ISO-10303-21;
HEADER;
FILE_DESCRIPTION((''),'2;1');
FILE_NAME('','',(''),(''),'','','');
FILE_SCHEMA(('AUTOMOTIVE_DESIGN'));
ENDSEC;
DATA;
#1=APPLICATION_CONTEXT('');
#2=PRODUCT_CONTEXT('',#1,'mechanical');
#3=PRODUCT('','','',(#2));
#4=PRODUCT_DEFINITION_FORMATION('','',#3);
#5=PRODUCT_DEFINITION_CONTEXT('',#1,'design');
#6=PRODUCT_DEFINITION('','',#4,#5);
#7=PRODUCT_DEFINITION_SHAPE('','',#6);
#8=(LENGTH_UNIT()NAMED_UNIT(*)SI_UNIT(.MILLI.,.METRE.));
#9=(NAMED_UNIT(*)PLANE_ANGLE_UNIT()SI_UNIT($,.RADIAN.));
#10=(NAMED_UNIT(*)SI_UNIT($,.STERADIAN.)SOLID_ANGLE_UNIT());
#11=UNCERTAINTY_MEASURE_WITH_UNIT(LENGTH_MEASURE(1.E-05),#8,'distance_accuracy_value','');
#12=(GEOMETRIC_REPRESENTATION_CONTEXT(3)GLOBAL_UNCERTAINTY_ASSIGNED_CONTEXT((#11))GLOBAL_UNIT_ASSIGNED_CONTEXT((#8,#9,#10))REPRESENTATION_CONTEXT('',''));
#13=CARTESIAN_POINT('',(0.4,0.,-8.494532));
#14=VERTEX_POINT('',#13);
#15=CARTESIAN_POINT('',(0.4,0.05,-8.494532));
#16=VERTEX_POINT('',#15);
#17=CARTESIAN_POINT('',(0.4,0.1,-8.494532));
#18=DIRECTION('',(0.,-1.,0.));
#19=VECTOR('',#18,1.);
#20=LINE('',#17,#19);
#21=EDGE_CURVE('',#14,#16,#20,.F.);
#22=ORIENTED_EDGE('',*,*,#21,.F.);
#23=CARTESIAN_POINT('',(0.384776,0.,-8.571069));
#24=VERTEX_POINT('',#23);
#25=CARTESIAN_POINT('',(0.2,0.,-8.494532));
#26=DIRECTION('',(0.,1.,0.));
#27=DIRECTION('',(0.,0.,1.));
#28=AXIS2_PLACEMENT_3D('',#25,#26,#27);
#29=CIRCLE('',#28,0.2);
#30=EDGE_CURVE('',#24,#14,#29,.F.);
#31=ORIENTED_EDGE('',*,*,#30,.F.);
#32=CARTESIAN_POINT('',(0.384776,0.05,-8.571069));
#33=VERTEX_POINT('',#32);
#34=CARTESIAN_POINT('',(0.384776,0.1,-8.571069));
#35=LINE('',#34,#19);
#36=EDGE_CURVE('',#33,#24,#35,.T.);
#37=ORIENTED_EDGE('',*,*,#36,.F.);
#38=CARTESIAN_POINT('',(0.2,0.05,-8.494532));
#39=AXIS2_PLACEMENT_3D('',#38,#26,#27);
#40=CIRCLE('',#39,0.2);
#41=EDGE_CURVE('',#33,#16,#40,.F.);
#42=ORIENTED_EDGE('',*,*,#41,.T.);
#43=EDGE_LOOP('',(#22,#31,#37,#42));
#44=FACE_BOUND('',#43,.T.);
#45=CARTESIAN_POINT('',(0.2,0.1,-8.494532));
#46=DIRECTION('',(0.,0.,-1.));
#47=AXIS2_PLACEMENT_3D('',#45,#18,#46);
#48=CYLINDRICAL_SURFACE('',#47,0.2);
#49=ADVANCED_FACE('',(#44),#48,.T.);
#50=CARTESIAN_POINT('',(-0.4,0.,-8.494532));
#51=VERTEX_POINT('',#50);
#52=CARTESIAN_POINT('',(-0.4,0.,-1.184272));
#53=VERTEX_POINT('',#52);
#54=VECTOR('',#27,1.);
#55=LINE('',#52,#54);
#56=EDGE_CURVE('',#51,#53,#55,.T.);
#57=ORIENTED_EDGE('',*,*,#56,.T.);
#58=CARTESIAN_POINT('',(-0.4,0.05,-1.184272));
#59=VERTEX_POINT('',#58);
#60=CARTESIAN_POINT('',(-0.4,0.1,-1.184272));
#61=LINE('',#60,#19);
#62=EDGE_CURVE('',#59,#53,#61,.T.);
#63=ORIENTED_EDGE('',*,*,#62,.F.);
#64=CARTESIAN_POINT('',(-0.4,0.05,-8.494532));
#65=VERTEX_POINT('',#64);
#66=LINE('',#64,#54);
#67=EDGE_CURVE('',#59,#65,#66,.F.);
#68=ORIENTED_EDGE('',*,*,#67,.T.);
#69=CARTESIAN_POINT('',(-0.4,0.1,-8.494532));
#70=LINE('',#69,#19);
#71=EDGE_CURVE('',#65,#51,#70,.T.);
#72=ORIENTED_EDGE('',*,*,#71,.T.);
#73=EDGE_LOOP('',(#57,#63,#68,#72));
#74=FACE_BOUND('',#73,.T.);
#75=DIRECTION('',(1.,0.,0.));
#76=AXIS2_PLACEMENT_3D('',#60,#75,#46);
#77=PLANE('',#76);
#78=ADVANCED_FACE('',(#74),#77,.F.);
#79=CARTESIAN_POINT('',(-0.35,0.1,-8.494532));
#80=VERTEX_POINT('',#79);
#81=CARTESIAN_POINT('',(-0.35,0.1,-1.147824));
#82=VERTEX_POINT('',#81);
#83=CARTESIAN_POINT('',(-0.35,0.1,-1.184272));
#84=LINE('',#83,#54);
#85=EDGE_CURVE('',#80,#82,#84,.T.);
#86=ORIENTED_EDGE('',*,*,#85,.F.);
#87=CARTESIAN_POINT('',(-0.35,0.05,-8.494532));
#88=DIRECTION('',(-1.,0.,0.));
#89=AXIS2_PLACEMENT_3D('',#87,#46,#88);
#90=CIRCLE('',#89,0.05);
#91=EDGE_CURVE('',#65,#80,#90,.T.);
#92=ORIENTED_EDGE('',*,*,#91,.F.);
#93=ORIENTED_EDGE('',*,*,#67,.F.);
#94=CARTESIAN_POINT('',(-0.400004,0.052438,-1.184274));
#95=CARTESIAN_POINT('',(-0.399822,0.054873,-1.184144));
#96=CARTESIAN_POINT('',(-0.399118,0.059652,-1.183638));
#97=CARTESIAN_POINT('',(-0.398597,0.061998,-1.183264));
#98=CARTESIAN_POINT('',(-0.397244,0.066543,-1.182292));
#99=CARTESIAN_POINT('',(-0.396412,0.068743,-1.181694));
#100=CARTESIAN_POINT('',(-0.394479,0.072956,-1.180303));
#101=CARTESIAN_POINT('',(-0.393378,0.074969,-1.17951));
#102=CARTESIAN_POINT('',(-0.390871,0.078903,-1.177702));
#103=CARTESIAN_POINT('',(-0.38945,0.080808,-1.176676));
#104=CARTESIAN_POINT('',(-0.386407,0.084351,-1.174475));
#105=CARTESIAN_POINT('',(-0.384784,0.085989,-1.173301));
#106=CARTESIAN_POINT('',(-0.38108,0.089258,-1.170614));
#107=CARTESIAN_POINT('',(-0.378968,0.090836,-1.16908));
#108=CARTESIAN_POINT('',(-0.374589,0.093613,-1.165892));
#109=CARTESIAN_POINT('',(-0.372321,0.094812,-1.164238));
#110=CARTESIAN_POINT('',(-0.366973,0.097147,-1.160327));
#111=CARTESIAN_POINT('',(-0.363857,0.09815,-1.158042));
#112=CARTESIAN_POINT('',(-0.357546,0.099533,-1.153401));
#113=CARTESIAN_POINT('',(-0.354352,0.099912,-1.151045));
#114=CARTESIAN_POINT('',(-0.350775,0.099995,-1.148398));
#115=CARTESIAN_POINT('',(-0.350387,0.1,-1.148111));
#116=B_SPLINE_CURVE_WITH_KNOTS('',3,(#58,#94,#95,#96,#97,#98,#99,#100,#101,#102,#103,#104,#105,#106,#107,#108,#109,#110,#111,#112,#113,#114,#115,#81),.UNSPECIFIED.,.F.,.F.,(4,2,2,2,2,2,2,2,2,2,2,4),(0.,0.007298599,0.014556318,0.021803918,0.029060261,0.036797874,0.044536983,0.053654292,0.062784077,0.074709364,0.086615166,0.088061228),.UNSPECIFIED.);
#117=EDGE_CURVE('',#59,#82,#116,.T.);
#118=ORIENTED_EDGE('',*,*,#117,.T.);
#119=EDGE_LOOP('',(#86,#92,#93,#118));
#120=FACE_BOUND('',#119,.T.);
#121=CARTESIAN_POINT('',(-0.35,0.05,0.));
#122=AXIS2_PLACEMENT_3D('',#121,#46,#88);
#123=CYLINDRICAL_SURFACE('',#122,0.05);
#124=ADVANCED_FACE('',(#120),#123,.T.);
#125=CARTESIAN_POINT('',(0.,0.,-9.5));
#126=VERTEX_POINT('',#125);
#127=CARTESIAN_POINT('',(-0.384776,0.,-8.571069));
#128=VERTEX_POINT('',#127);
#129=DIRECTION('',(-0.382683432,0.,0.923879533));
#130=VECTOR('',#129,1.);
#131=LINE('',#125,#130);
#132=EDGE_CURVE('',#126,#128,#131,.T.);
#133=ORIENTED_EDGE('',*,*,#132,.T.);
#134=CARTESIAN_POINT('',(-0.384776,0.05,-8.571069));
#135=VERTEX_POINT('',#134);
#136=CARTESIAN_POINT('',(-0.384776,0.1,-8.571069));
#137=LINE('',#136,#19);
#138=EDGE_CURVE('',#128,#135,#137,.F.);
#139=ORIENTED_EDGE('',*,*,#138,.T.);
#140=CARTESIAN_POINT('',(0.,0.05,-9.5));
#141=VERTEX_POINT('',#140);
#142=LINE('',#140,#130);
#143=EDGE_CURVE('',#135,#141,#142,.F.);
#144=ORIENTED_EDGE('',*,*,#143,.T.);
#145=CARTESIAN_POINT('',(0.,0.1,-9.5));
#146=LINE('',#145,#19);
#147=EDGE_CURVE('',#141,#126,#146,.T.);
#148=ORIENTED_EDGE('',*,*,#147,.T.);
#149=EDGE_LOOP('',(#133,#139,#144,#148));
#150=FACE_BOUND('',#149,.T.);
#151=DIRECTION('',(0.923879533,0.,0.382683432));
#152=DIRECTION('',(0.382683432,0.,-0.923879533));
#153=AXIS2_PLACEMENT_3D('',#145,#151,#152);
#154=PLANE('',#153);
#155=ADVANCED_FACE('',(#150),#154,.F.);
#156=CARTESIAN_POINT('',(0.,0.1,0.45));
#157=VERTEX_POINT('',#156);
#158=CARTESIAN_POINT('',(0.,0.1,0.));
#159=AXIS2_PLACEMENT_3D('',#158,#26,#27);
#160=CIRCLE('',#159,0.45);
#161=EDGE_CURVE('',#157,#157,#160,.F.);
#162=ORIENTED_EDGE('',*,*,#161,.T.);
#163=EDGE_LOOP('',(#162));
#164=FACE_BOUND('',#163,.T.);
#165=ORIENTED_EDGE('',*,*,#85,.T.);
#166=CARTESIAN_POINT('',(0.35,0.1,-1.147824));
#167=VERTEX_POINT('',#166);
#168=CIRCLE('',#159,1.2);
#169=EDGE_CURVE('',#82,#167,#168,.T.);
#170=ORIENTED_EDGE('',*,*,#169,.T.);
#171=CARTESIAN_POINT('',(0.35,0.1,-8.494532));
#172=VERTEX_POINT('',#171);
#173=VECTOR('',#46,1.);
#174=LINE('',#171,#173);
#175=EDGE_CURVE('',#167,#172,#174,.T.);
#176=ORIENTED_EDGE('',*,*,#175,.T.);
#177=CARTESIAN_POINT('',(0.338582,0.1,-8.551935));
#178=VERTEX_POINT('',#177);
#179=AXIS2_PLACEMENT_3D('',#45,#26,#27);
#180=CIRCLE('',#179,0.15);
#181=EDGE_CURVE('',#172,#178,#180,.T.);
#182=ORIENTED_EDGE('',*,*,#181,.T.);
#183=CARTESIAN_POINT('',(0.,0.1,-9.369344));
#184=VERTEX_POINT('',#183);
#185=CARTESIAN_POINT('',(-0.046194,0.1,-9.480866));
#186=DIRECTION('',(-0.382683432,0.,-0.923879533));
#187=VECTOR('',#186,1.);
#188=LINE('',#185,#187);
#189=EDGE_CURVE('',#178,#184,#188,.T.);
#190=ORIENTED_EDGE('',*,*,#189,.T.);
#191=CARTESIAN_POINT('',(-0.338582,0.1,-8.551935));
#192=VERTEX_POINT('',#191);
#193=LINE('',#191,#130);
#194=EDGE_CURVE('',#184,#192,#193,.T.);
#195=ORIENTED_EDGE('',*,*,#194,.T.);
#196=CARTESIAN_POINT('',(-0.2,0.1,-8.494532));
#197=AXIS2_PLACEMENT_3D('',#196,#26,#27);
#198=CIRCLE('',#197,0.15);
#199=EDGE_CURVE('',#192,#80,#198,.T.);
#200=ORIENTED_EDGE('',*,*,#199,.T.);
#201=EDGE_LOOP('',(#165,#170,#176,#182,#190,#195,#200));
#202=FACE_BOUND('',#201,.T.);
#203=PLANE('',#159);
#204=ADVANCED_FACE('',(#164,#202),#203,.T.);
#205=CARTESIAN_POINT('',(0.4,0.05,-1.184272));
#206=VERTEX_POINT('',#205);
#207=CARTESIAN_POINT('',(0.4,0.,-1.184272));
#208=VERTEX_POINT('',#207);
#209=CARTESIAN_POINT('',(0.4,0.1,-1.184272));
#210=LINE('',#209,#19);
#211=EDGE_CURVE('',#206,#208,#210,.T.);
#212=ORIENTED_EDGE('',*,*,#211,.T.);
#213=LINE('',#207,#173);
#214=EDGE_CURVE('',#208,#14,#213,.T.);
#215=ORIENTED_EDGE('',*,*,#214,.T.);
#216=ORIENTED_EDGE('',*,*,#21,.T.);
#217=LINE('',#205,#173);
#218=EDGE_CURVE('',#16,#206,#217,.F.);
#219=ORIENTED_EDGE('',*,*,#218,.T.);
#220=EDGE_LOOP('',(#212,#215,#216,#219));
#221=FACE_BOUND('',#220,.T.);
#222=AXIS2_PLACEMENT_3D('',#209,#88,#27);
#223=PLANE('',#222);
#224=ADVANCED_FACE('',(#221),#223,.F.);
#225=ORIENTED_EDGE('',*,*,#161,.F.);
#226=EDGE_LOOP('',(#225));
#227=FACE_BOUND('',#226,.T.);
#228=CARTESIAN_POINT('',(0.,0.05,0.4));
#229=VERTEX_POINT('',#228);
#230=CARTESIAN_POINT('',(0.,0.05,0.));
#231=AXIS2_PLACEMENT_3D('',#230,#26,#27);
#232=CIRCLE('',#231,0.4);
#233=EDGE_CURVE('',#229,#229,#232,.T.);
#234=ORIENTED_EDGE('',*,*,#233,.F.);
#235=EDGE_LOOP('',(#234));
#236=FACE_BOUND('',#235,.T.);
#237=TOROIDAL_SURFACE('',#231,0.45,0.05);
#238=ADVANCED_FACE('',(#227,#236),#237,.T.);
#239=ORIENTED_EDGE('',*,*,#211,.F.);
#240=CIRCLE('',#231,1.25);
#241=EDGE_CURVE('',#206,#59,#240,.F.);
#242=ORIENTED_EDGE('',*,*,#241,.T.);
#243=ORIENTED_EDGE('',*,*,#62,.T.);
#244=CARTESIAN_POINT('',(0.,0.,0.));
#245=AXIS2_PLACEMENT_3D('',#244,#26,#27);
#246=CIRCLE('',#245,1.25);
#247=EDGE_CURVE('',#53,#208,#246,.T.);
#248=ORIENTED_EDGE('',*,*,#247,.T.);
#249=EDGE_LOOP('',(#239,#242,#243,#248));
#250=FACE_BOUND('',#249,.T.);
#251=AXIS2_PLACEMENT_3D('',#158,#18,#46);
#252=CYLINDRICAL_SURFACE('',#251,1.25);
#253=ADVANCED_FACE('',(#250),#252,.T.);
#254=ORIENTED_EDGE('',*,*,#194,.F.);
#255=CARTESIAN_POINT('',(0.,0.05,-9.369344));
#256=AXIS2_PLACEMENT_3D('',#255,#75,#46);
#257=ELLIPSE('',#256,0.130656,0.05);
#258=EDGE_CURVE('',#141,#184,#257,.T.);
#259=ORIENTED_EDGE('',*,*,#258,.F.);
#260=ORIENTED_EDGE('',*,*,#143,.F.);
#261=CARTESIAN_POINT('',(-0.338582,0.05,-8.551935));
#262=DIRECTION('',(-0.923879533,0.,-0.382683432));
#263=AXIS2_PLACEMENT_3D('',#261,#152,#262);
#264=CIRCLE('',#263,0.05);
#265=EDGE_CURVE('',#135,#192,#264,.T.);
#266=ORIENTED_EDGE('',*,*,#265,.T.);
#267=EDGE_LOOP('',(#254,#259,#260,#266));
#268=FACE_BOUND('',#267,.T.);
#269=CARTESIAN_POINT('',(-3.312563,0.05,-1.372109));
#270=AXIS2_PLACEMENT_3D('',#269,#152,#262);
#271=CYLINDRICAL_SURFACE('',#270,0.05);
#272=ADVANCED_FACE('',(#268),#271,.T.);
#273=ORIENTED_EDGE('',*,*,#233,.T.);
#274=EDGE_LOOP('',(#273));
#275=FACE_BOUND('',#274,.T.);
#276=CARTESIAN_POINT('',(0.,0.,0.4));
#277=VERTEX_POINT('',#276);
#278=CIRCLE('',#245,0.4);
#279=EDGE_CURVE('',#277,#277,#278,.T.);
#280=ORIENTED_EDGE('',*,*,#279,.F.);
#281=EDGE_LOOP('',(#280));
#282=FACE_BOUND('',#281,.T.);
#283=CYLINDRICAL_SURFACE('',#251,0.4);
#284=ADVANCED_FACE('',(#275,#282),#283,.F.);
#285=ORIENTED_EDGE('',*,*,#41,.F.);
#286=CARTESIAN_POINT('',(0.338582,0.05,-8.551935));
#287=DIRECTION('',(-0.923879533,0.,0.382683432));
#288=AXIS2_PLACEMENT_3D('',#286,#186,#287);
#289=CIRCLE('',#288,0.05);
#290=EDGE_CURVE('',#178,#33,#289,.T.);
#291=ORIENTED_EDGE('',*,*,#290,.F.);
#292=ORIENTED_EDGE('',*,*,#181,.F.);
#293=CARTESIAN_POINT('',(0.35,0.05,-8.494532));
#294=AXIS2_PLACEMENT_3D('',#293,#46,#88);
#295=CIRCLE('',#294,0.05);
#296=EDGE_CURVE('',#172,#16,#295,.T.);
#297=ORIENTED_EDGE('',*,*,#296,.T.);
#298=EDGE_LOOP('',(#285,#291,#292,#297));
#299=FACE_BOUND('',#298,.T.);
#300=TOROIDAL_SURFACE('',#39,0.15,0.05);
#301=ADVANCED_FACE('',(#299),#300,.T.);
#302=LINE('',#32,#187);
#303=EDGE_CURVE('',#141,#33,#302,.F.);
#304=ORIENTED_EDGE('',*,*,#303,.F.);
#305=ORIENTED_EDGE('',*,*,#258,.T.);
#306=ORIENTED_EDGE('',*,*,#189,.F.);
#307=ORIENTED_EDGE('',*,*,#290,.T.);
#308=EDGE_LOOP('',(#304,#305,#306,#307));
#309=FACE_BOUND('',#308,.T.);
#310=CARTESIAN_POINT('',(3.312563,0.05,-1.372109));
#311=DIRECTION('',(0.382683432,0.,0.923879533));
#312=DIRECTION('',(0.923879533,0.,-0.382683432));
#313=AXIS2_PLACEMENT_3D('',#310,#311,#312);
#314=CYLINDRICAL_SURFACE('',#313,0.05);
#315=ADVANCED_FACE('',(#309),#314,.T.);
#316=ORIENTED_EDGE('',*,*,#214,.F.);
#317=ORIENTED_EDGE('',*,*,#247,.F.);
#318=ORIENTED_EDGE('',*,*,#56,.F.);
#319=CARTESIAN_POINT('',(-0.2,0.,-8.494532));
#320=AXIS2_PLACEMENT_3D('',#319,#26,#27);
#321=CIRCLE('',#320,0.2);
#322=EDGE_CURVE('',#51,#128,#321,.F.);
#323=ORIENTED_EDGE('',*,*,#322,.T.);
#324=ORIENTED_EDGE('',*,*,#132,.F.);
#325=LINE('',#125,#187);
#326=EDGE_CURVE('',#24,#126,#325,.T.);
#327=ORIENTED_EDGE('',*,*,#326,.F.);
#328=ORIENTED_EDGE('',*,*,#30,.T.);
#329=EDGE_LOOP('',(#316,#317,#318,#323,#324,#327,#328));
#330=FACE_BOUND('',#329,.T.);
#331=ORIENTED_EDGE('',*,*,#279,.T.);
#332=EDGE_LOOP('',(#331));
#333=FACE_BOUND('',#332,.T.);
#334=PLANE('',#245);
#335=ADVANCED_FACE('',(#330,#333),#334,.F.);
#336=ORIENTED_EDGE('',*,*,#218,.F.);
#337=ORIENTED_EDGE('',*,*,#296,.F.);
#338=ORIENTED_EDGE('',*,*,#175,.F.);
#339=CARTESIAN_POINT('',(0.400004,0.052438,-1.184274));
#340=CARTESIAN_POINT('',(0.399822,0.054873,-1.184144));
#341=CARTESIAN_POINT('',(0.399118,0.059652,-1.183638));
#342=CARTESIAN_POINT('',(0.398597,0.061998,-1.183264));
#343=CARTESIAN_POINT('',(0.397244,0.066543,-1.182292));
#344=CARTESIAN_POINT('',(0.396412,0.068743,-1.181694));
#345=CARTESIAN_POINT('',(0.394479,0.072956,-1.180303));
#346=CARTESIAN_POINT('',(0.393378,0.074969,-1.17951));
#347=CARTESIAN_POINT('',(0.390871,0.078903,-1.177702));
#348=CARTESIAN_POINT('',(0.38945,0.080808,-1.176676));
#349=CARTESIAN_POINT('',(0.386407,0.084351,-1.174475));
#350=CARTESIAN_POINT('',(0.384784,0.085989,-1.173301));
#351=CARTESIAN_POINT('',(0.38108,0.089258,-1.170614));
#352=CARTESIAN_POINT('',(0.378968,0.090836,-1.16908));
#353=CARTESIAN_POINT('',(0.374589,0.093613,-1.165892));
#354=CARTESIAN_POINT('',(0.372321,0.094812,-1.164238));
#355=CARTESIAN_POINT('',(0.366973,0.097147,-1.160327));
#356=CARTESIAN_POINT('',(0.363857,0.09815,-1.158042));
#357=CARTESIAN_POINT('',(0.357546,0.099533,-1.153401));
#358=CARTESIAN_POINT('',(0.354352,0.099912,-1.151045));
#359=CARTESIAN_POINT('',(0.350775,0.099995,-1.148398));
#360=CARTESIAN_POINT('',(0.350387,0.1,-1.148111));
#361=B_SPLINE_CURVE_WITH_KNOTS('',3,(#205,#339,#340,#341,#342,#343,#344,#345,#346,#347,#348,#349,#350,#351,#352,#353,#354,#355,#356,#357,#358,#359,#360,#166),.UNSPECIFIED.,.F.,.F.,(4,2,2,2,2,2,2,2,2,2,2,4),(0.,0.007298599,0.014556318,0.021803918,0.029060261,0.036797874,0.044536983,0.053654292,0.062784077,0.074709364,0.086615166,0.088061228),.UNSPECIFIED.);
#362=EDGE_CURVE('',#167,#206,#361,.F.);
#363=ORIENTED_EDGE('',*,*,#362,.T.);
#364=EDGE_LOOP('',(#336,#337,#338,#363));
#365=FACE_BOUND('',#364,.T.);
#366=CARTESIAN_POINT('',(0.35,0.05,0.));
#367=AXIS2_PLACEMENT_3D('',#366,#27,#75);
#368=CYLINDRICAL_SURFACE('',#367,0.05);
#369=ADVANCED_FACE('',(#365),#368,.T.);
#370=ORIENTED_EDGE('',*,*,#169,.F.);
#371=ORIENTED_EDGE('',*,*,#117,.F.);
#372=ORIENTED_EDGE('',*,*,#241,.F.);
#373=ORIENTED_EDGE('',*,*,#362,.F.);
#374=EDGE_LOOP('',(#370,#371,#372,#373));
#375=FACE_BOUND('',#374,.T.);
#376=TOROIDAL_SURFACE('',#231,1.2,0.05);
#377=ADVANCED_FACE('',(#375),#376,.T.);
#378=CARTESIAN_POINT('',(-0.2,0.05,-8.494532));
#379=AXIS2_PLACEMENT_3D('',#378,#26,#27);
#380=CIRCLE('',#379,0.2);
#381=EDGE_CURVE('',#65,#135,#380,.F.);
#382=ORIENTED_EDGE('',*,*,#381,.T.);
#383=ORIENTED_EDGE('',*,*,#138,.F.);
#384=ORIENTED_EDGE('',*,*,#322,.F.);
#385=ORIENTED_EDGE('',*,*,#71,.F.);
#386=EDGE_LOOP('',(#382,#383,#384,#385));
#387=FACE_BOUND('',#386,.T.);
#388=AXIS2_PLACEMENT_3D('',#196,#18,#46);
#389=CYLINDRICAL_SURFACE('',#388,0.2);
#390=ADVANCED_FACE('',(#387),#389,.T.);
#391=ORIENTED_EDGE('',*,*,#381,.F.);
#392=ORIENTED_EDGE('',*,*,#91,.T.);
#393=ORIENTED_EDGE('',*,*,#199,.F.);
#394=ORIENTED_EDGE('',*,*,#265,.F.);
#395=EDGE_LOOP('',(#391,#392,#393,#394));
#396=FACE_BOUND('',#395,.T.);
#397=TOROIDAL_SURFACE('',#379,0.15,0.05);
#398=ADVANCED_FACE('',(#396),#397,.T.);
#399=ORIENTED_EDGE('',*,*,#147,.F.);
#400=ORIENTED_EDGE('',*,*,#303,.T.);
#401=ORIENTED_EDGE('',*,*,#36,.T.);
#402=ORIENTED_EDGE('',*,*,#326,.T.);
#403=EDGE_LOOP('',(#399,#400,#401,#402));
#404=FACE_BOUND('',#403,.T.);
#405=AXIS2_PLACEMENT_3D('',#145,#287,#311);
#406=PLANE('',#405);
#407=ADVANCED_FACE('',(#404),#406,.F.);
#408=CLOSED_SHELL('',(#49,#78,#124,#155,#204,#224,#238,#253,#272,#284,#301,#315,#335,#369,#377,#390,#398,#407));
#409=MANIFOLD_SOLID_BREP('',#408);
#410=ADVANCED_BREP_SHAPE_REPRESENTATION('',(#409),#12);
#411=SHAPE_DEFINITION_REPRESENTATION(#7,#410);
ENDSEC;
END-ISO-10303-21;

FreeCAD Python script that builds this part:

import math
import FreeCAD as App
import Part
import Sketcher

V = App.Vector
Q = App.Units.Quantity


def edges_at(feature, points):
    """Names of the edges that pass closest to the given points."""
    edges = feature.Shape.Edges
    near = lambda p: min(range(len(edges)), key=lambda i: edges[i].distToShape(Part.Vertex(*p))[0])
    return sorted({f"Edge{near(p) + 1}" for p in points})

doc = App.newDocument("Part")
body = doc.addObject("PartDesign::Body", "Body")

sketch1 = body.newObject("Sketcher::SketchObject", "Sketch")
sketch1.AttachmentSupport = (doc.getObject("XZ_Plane"), [""])
sketch1.MapMode = "FlatFace"
sketch1.addGeometry([
    Part.LineSegment(V(0.4, -1.18, 0), V(0.4, -8.53, 0)),
    Part.LineSegment(V(0.4, -8.53, 0), V(0, -9.5, 0)),
    Part.LineSegment(V(0, -9.5, 0), V(-0.4, -8.53, 0)),
    Part.LineSegment(V(-0.4, -8.53, 0), V(-0.4, -1.18, 0)),
    Part.ArcOfCircle(Part.Circle(V(0, 0, 0), V(0, 0, 1), 1.25), math.radians(-71), math.radians(251)),
    Part.Circle(V(0, 0, 0), V(0, 0, 1), 0.4),
], False)
sketch1.addConstraint([
    Sketcher.Constraint("Coincident", 0, 2, 1, 1),
    Sketcher.Constraint("Coincident", 1, 2, 2, 1),
    Sketcher.Constraint("Coincident", 2, 2, 3, 1),
    Sketcher.Constraint("Coincident", 3, 2, 4, 2),
    Sketcher.Constraint("Coincident", 4, 1, 0, 1),
    Sketcher.Constraint("Vertical", 0),
    Sketcher.Constraint("Vertical", 3),
    Sketcher.Constraint("Coincident", 4, 3, -1, 1),
    Sketcher.Constraint("Coincident", 5, 3, -1, 1),
    Sketcher.Constraint("Symmetric", 0, 2, 2, 2, -2),
    Sketcher.Constraint("PointOnObject", 1, 2, -2),
    Sketcher.Constraint("Diameter", 5, 0.8),
    Sketcher.Constraint("Radius", 4, 1.25),
    Sketcher.Constraint("Angle", 1, Q("-112.5 deg")),
    Sketcher.Constraint("DistanceX", -1, 1, 0, 2, 0.4),
    Sketcher.Constraint("DistanceY", 1, 2, -1, 1, 9.5),
])
pad1 = body.newObject("PartDesign::Pad", "Pad")
pad1.Profile = sketch1
pad1.Length = 0.1
pad1.Reversed = True
doc.recompute()

fillet = body.newObject("PartDesign::Fillet", "Fillet")
fillet.Base = (pad1, edges_at(pad1, [(0.4, 0.05, -8.534), (-0.4, 0.05, -8.534)]))
fillet.Radius = 0.2
doc.recompute()

fillet2 = body.newObject("PartDesign::Fillet", "Fillet001")
fillet2.Base = (fillet, edges_at(fillet, [
    (0, 0.1, 1.25),
    (0, 0.1, -0.4),
    (0.4, 0.1, -4.839),
    (-0.4, 0.1, -4.839),
    (0.192, 0.1, -9.036),
    (0.396, 0.1, -8.534),
    (-0.396, 0.1, -8.534),
    (-0.192, 0.1, -9.036),
]))
fillet2.Radius = 0.05

doc.recompute()
